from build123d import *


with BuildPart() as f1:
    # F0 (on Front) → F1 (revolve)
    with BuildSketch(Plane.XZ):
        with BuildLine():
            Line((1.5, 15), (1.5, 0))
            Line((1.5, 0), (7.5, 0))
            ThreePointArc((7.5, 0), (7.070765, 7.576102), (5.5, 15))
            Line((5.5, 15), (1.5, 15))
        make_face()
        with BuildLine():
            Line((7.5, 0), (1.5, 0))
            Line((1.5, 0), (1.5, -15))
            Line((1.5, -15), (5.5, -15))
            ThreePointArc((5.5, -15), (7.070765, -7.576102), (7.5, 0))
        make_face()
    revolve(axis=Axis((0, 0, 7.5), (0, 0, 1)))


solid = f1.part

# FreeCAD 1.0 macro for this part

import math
import FreeCAD as App
import Part
import Sketcher
Q = App.Units.Quantity

doc = App.newDocument("Part")
body = doc.addObject("PartDesign::Body", "Body")

sketch1 = body.newObject("Sketcher::SketchObject", "Sketch")
sketch1.AttachmentSupport = (doc.getObject("XZ_Plane"), [""])
sketch1.MapMode = "FlatFace"
sketch1.addGeometry([
    Part.LineSegment(App.Vector(1.5, 15, 0), App.Vector(1.5, -15, 0)),
    Part.LineSegment(App.Vector(1.5, -15, 0), App.Vector(5.5, -15, 0)),
    Part.ArcOfCircle(Part.Circle(App.Vector(-42.5, -1, 0), App.Vector(0, 0, 1), 50), math.radians(-16.3), math.radians(1.11)),
    Part.ArcOfCircle(Part.Circle(App.Vector(-42.5, 1, 0), App.Vector(0, 0, 1), 50), math.radians(-1.11), math.radians(16.3)),
    Part.LineSegment(App.Vector(5.5, 15, 0), App.Vector(1.5, 15, 0)),
], False)
sketch1.addConstraint([
    Sketcher.Constraint("Coincident", 0, 2, 1, 1),
    Sketcher.Constraint("Coincident", 1, 2, 2, 1),
    Sketcher.Constraint("Coincident", 2, 2, 3, 1),
    Sketcher.Constraint("Coincident", 3, 2, 4, 1),
    Sketcher.Constraint("Coincident", 4, 2, 0, 1),
    Sketcher.Constraint("Vertical", 0),
    Sketcher.Constraint("Horizontal", 1),
    Sketcher.Constraint("Horizontal", 4),
    Sketcher.Constraint("Equal", 2, 3),
    Sketcher.Constraint("Symmetric", 2, 3, 3, 3, -1),
    Sketcher.Constraint("Vertical", 1, 2, 3, 2),
    Sketcher.Constraint("DistanceX", 1, 1, 1, 2, Q("4 mm")),
    Sketcher.Constraint("DistanceY", 0, 2, 0, 1, Q("30 mm")),
    Sketcher.Constraint("DistanceX", 1, 2, 2, 2, Q("2 mm")),
    Sketcher.Constraint("DistanceX", -1, 1, 0, 2, Q("1.5 mm")),
    Sketcher.Constraint("Radius", 2, Q("49.999959 mm")),
])
revolution = body.newObject("PartDesign::Revolution", "Revolution")
revolution.Profile = sketch1
revolution.ReferenceAxis = (sketch1, ["V_Axis"])
revolution.Angle = 360

doc.recompute()
